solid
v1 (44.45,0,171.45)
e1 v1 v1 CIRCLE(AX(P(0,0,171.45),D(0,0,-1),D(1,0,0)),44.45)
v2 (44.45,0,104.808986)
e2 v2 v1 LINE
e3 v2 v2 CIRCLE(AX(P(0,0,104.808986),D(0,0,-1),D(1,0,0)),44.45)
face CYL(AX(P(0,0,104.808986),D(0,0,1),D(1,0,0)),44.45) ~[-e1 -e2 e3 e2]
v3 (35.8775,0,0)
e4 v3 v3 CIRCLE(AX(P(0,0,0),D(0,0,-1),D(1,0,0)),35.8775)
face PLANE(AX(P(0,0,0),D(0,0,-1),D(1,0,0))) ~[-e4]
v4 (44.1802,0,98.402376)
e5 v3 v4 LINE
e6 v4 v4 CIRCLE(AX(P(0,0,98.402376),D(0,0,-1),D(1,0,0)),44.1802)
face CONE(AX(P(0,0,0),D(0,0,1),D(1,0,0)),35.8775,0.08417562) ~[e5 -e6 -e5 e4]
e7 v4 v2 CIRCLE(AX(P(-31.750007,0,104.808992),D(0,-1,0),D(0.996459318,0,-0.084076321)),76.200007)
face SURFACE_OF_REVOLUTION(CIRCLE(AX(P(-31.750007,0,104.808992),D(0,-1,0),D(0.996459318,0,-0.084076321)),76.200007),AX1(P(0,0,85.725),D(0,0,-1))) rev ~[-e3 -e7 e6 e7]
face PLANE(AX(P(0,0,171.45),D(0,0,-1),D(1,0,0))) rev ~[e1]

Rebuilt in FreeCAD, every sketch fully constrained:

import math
import FreeCAD as App
import Part
import Sketcher
Q = App.Units.Quantity

doc = App.newDocument("Part")
params = doc.addObject("Spreadsheet::Sheet", "Params")
for row, (alias, value) in enumerate([
    ("sketch1_width", "1.75 in"),
    ("sketch1_height", "6.75 in"),
    ("revolution_angle", "360 deg"),
], start=1):
    params.set(f"A{row}", alias)
    params.set(f"B{row}", "=" + value)
    params.setAlias(f"B{row}", alias)

body = doc.addObject("PartDesign::Body", "Body")

sketch1 = body.newObject("Sketcher::SketchObject", "Sketch")
sketch1.AttachmentSupport = (doc.getObject("XZ_Plane"), [""])
sketch1.MapMode = "FlatFace"
sketch1.addGeometry([
    Part.LineSegment(App.Vector(0, 171.45, 0), App.Vector(0, 0, 0)),
    Part.LineSegment(App.Vector(0, 0, 0), App.Vector(35.8775, 0, 0)),
    Part.LineSegment(App.Vector(35.8775, 0, 0), App.Vector(44.1802, 98.402376, 0)),
    Part.ArcOfCircle(Part.Circle(App.Vector(-31.750007, 104.808992, 0), App.Vector(0, 0, 1), 76.200007), math.radians(-4.822912), math.radians(-0.000005)),
    Part.LineSegment(App.Vector(44.45, 104.808986, 0), App.Vector(44.45, 171.45, 0)),
    Part.LineSegment(App.Vector(44.45, 171.45, 0), App.Vector(0, 171.45, 0)),
], False)
sketch1.addConstraint([
    Sketcher.Constraint("Coincident", 0, 2, 1, 1),
    Sketcher.Constraint("Coincident", 1, 2, 2, 1),
    Sketcher.Constraint("Coincident", 2, 2, 3, 1),
    Sketcher.Constraint("Coincident", 3, 2, 4, 1),
    Sketcher.Constraint("Coincident", 4, 2, 5, 1),
    Sketcher.Constraint("Coincident", 5, 2, 0, 1),
    Sketcher.Constraint("Vertical", 0),
    Sketcher.Constraint("Horizontal", 1),
    Sketcher.Constraint("Vertical", 4),
    Sketcher.Constraint("Horizontal", 5),
    Sketcher.Constraint("Coincident", 0, 2, -1, 1),
    Sketcher.Constraint("DistanceX", 5, 2, 5, 1, Q("1.75 in")),
    Sketcher.Constraint("DistanceY", 0, 2, 0, 1, Q("6.75 in")),
    Sketcher.Constraint("DistanceX", 1, 1, 1, 2, Q("1.4125 in")),
    Sketcher.Constraint("Radius", 3, 76.200007),
    Sketcher.Constraint("DistanceX", -1, 1, 2, 2, 44.1802),
    Sketcher.Constraint("DistanceY", 4, 1, 4, 2, 66.641014),
    Sketcher.Constraint("DistanceY", 2, 2, 3, 2, 6.40661),
])
sketch1.setExpression("Constraints[11]", "Params.sketch1_width")
sketch1.setExpression("Constraints[12]", "Params.sketch1_height")
revolution = body.newObject("PartDesign::Revolution", "Revolution")
revolution.Profile = sketch1
revolution.ReferenceAxis = (sketch1, ["V_Axis"])
revolution.setExpression("Angle", "Params.revolution_angle")

doc.recompute()
